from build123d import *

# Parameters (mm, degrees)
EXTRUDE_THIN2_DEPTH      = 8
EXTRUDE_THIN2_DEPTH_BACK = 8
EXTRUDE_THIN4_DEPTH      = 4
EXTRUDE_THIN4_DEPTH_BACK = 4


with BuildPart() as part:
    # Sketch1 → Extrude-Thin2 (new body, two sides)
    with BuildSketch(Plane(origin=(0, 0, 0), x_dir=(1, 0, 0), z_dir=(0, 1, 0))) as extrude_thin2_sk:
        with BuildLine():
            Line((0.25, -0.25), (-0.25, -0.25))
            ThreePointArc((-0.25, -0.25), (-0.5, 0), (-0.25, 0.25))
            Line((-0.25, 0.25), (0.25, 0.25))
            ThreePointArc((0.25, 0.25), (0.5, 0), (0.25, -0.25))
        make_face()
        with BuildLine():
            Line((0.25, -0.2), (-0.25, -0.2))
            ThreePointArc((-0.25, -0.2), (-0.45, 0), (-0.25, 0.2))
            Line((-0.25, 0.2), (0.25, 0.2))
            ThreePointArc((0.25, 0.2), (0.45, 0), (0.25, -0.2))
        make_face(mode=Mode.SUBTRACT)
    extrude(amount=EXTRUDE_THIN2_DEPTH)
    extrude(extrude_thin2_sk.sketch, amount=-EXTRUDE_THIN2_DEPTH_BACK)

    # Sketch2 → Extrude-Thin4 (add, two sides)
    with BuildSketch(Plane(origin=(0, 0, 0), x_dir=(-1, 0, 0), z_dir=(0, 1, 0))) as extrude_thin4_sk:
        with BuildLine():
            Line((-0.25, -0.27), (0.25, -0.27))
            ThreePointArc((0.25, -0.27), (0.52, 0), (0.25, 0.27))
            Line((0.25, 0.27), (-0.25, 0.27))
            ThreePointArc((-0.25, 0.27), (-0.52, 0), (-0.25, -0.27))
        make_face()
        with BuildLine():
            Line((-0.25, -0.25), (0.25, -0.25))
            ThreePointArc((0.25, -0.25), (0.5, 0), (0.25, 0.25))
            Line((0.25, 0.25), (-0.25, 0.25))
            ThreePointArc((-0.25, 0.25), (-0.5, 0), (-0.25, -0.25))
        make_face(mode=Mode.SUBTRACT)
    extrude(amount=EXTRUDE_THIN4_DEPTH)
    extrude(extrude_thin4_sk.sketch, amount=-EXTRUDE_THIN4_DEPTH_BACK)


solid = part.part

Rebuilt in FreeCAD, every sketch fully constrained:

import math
import FreeCAD as App
import Part
import Sketcher

doc = App.newDocument("Part")
body = doc.addObject("PartDesign::Body", "Body")

# Sketch on XZ plane
sketch1 = doc.addObject("Sketcher::SketchObject", "Sketch")
body.addObject(sketch1)
sketch1.AttachmentSupport = (doc.XZ_Plane, [""])
sketch1.MapMode = "FlatFace"
sketch1.addGeometry([
    Part.LineSegment(App.Vector(-0.25, 0.25, 0), App.Vector(0.25, 0.25, 0)),  # 0
    Part.ArcOfCircle(Part.Circle(App.Vector(0.25, 0, 0), App.Vector(0, 0, 1), 0.25), math.radians(-90), math.radians(90)),  # 1
    Part.LineSegment(App.Vector(0.25, -0.25, 0), App.Vector(-0.25, -0.25, 0)),  # 2
    Part.ArcOfCircle(Part.Circle(App.Vector(-0.25, 0, 0), App.Vector(0, 0, 1), 0.25), math.radians(90), math.radians(270)),  # 3
    Part.LineSegment(App.Vector(0.25, 0.2, 0), App.Vector(-0.25, 0.2, 0)),  # 4
    Part.ArcOfCircle(Part.Circle(App.Vector(-0.25, 0, 0), App.Vector(0, 0, 1), 0.2), math.radians(90), math.radians(270)),  # 5
    Part.LineSegment(App.Vector(-0.25, -0.2, 0), App.Vector(0.25, -0.2, 0)),  # 6
    Part.ArcOfCircle(Part.Circle(App.Vector(0.25, 0, 0), App.Vector(0, 0, 1), 0.2), math.radians(-90), math.radians(90)),  # 7
], False)
sketch1.addConstraint([
    Sketcher.Constraint("Tangent", 0, 2, 1, 2),
    Sketcher.Constraint("Tangent", 1, 1, 2, 1),
    Sketcher.Constraint("Tangent", 2, 2, 3, 2),
    Sketcher.Constraint("Tangent", 3, 1, 0, 1),
    Sketcher.Constraint("Tangent", 4, 2, 5, 1),
    Sketcher.Constraint("Tangent", 5, 2, 6, 1),
    Sketcher.Constraint("Tangent", 6, 2, 7, 1),
    Sketcher.Constraint("Tangent", 7, 2, 4, 1),
    Sketcher.Constraint("Horizontal", 0),
    Sketcher.Constraint("Horizontal", 2),
    Sketcher.Constraint("Horizontal", 4),
    Sketcher.Constraint("Horizontal", 6),
    Sketcher.Constraint("Coincident", 5, 3, 3, 3),
    Sketcher.Constraint("Symmetric", 1, 3, 3, 3, -1, 1),
    Sketcher.Constraint("Vertical", 7, 3, 0, 2),
    Sketcher.Constraint("Radius", 5, 0.2),
    Sketcher.Constraint("Radius", 1, 0.25),
    Sketcher.Constraint("DistanceX", 0, 1, 0, 2, 0.5),
])
pad1 = doc.addObject("PartDesign::Pad", "Pad")
body.addObject(pad1)
pad1.Profile = sketch1
pad1.Type = "TwoLengths"
pad1.Length = 8
pad1.Length2 = 8
pad1.Reversed = True

# Sketch on XZ plane
sketch2 = doc.addObject("Sketcher::SketchObject", "Sketch001")
body.addObject(sketch2)
sketch2.AttachmentSupport = (doc.XZ_Plane, [""])
sketch2.MapMode = "FlatFace"
sketch2.addGeometry([
    Part.LineSegment(App.Vector(0.25, -0.27, 0), App.Vector(-0.25, -0.27, 0)),  # 0
    Part.ArcOfCircle(Part.Circle(App.Vector(-0.25, 0, 0), App.Vector(0, 0, 1), 0.27), math.radians(90), math.radians(270)),  # 1
    Part.LineSegment(App.Vector(-0.25, 0.27, 0), App.Vector(0.25, 0.27, 0)),  # 2
    Part.ArcOfCircle(Part.Circle(App.Vector(0.25, 0, 0), App.Vector(0, 0, 1), 0.27), math.radians(-90), math.radians(90)),  # 3
    Part.LineSegment(App.Vector(-0.25, -0.25, 0), App.Vector(0.25, -0.25, 0)),  # 4
    Part.ArcOfCircle(Part.Circle(App.Vector(0.25, 0, 0), App.Vector(0, 0, 1), 0.25), math.radians(-90), math.radians(90)),  # 5
    Part.LineSegment(App.Vector(0.25, 0.25, 0), App.Vector(-0.25, 0.25, 0)),  # 6
    Part.ArcOfCircle(Part.Circle(App.Vector(-0.25, 0, 0), App.Vector(0, 0, 1), 0.25), math.radians(90), math.radians(270)),  # 7
], False)
sketch2.addConstraint([
    Sketcher.Constraint("Tangent", 0, 2, 1, 2),
    Sketcher.Constraint("Tangent", 1, 1, 2, 1),
    Sketcher.Constraint("Tangent", 2, 2, 3, 2),
    Sketcher.Constraint("Tangent", 3, 1, 0, 1),
    Sketcher.Constraint("Tangent", 4, 2, 5, 1),
    Sketcher.Constraint("Tangent", 5, 2, 6, 1),
    Sketcher.Constraint("Tangent", 6, 2, 7, 1),
    Sketcher.Constraint("Tangent", 7, 2, 4, 1),
    Sketcher.Constraint("Horizontal", 0),
    Sketcher.Constraint("Horizontal", 2),
    Sketcher.Constraint("Horizontal", 4),
    Sketcher.Constraint("Horizontal", 6),
    Sketcher.Constraint("Coincident", 5, 3, 3, 3),
    Sketcher.Constraint("Symmetric", 1, 3, 3, 3, -1, 1),
    Sketcher.Constraint("Vertical", 7, 3, 0, 2),
    Sketcher.Constraint("Radius", 1, 0.27),
    Sketcher.Constraint("Radius", 5, 0.25),
    Sketcher.Constraint("DistanceX", 0, 2, 0, 1, 0.5),
])
pad2 = doc.addObject("PartDesign::Pad", "Pad001")
body.addObject(pad2)
pad2.Profile = sketch2
pad2.Type = "TwoLengths"
pad2.Length = 4
pad2.Length2 = 4
pad2.Reversed = True

doc.recompute()
